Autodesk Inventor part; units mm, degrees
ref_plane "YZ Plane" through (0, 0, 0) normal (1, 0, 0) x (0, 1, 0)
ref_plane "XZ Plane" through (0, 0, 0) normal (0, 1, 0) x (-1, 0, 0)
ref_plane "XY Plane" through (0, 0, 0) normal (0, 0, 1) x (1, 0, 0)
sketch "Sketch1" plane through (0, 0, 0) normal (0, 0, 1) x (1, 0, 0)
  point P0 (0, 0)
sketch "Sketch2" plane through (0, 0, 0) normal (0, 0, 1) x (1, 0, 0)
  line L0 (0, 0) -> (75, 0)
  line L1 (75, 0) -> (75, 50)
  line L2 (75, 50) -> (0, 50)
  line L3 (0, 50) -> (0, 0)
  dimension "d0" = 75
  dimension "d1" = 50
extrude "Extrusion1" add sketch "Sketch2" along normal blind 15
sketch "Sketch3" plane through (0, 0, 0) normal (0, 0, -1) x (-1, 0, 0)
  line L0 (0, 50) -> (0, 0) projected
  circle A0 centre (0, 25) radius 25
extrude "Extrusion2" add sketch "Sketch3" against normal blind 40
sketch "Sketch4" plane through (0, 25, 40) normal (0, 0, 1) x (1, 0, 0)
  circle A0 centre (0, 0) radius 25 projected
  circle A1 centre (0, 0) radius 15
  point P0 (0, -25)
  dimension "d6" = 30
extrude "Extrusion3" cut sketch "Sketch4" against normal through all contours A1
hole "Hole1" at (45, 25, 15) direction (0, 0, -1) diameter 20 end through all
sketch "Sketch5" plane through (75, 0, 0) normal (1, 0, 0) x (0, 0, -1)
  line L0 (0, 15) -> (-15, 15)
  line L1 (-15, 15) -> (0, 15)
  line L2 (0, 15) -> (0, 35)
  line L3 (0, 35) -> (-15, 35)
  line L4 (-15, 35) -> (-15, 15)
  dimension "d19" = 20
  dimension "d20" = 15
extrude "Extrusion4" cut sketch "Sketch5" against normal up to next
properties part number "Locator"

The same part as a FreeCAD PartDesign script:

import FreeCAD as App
import Part
import Sketcher

V = App.Vector
Q = App.Units.Quantity

doc = App.newDocument("Part")
body = doc.addObject("PartDesign::Body", "Body")

# Sketch on XY plane
sketch1 = doc.addObject("Sketcher::SketchObject", "Sketch")
body.addObject(sketch1)
sketch1.AttachmentSupport = (doc.XY_Plane, [""])
sketch1.MapMode = "FlatFace"
sketch1.addGeometry(Part.LineSegment(V(0, 50, 0), V(0, 0, 0)), False)
sketch1.addGeometry(Part.LineSegment(V(0, 0, 0), V(75, 0, 0)), False)
sketch1.addGeometry(Part.LineSegment(V(75, 0, 0), V(75, 50, 0)), False)
sketch1.addGeometry(Part.LineSegment(V(75, 50, 0), V(0, 50, 0)), False)
sketch1.addConstraint(Sketcher.Constraint("Coincident", 0, 2, 1, 1))
sketch1.addConstraint(Sketcher.Constraint("Coincident", 1, 2, 2, 1))
sketch1.addConstraint(Sketcher.Constraint("Coincident", 2, 2, 3, 1))
sketch1.addConstraint(Sketcher.Constraint("Coincident", 3, 2, 0, 1))
sketch1.addConstraint(Sketcher.Constraint("Vertical", 0))
sketch1.addConstraint(Sketcher.Constraint("Horizontal", 1))
sketch1.addConstraint(Sketcher.Constraint("Vertical", 2))
sketch1.addConstraint(Sketcher.Constraint("Horizontal", 3))
sketch1.addConstraint(Sketcher.Constraint("Coincident", 0, 2, -1, 1))
sketch1.addConstraint(Sketcher.Constraint("DistanceX", 1, 1, 1, 2, Q("75 mm")))
sketch1.addConstraint(Sketcher.Constraint("DistanceY", 0, 2, 0, 1, Q("50 mm")))
pad1 = doc.addObject("PartDesign::Pad", "Pad")
body.addObject(pad1)
pad1.Profile = sketch1
pad1.Length = 15

# Sketch on XY plane
sketch2 = doc.addObject("Sketcher::SketchObject", "Sketch001")
body.addObject(sketch2)
sketch2.AttachmentSupport = (doc.XY_Plane, [""])
sketch2.MapMode = "FlatFace"
sketch2.addGeometry(Part.Circle(V(0, 25, 0), V(0, 0, 1), 25), False)
sketch2.addConstraint(Sketcher.Constraint("PointOnObject", 0, 3, -2))
sketch2.addConstraint(Sketcher.Constraint("Diameter", 0, Q("50 mm")))
sketch2.addConstraint(Sketcher.Constraint("DistanceY", -1, 1, 0, 3, Q("25 mm")))
pad2 = doc.addObject("PartDesign::Pad", "Pad001")
body.addObject(pad2)
pad2.Profile = sketch2
pad2.Length = 40

# Sketch on XY plane
sketch3 = doc.addObject("Sketcher::SketchObject", "Sketch002")
body.addObject(sketch3)
sketch3.AttachmentSupport = (doc.XY_Plane, [""])
sketch3.MapMode = "FlatFace"
sketch3.AttachmentOffset = App.Placement(V(0, 0, 40), App.Rotation())
sketch3.addGeometry(Part.Circle(V(0, 25, 0), V(0, 0, 1), 15), False)
sketch3.addConstraint(Sketcher.Constraint("PointOnObject", 0, 3, -2))
sketch3.addConstraint(Sketcher.Constraint("Diameter", 0, Q("30 mm")))
sketch3.addConstraint(Sketcher.Constraint("DistanceY", -1, 1, 0, 3, Q("25 mm")))
pocket1 = doc.addObject("PartDesign::Pocket", "Pocket")
body.addObject(pocket1)
pocket1.Profile = sketch3
pocket1.Type = "ThroughAll"

# Sketch on XY plane
sketch4 = doc.addObject("Sketcher::SketchObject", "Sketch003")
body.addObject(sketch4)
sketch4.AttachmentSupport = (doc.XY_Plane, [""])
sketch4.MapMode = "FlatFace"
sketch4.AttachmentOffset = App.Placement(V(0, 0, 15), App.Rotation())
sketch4.addGeometry(Part.Circle(V(45, 25, 0), V(0, 0, 1), 10), False)
sketch4.addConstraint(Sketcher.Constraint("Diameter", 0, Q("20 mm")))
sketch4.addConstraint(Sketcher.Constraint("DistanceX", -1, 1, 0, 3, Q("45 mm")))
sketch4.addConstraint(Sketcher.Constraint("DistanceY", -1, 1, 0, 3, Q("25 mm")))
doc.recompute()
hole = doc.addObject("PartDesign::Hole", "Hole")
body.addObject(hole)
hole.Profile = sketch4
hole.ThreadType = "None"
hole.Diameter = 20
hole.DepthType = "ThroughAll"

# Sketch on YZ plane
sketch5 = doc.addObject("Sketcher::SketchObject", "Sketch004")
body.addObject(sketch5)
sketch5.AttachmentSupport = (doc.YZ_Plane, [""])
sketch5.MapMode = "FlatFace"
sketch5.AttachmentOffset = App.Placement(V(0, 0, 75), App.Rotation())
sketch5.addGeometry(Part.LineSegment(V(15, 15, 0), V(15, 0, 0)), False)
sketch5.addGeometry(Part.LineSegment(V(15, 0, 0), V(35, 0, 0)), False)
sketch5.addGeometry(Part.LineSegment(V(35, 0, 0), V(35, 15, 0)), False)
sketch5.addGeometry(Part.LineSegment(V(35, 15, 0), V(15, 15, 0)), False)
sketch5.addConstraint(Sketcher.Constraint("Coincident", 0, 2, 1, 1))
sketch5.addConstraint(Sketcher.Constraint("Coincident", 1, 2, 2, 1))
sketch5.addConstraint(Sketcher.Constraint("Coincident", 2, 2, 3, 1))
sketch5.addConstraint(Sketcher.Constraint("Coincident", 3, 2, 0, 1))
sketch5.addConstraint(Sketcher.Constraint("Vertical", 0))
sketch5.addConstraint(Sketcher.Constraint("Horizontal", 1))
sketch5.addConstraint(Sketcher.Constraint("Vertical", 2))
sketch5.addConstraint(Sketcher.Constraint("Horizontal", 3))
sketch5.addConstraint(Sketcher.Constraint("PointOnObject", 0, 2, -1))
sketch5.addConstraint(Sketcher.Constraint("DistanceX", 1, 1, 1, 2, Q("20 mm")))
sketch5.addConstraint(Sketcher.Constraint("DistanceY", 0, 2, 0, 1, Q("15 mm")))
sketch5.addConstraint(Sketcher.Constraint("DistanceX", -1, 1, 0, 2, Q("15 mm")))
pocket2 = doc.addObject("PartDesign::Pocket", "Pocket001")
body.addObject(pocket2)
pocket2.Profile = sketch5
pocket2.Length = 30

doc.recompute()
